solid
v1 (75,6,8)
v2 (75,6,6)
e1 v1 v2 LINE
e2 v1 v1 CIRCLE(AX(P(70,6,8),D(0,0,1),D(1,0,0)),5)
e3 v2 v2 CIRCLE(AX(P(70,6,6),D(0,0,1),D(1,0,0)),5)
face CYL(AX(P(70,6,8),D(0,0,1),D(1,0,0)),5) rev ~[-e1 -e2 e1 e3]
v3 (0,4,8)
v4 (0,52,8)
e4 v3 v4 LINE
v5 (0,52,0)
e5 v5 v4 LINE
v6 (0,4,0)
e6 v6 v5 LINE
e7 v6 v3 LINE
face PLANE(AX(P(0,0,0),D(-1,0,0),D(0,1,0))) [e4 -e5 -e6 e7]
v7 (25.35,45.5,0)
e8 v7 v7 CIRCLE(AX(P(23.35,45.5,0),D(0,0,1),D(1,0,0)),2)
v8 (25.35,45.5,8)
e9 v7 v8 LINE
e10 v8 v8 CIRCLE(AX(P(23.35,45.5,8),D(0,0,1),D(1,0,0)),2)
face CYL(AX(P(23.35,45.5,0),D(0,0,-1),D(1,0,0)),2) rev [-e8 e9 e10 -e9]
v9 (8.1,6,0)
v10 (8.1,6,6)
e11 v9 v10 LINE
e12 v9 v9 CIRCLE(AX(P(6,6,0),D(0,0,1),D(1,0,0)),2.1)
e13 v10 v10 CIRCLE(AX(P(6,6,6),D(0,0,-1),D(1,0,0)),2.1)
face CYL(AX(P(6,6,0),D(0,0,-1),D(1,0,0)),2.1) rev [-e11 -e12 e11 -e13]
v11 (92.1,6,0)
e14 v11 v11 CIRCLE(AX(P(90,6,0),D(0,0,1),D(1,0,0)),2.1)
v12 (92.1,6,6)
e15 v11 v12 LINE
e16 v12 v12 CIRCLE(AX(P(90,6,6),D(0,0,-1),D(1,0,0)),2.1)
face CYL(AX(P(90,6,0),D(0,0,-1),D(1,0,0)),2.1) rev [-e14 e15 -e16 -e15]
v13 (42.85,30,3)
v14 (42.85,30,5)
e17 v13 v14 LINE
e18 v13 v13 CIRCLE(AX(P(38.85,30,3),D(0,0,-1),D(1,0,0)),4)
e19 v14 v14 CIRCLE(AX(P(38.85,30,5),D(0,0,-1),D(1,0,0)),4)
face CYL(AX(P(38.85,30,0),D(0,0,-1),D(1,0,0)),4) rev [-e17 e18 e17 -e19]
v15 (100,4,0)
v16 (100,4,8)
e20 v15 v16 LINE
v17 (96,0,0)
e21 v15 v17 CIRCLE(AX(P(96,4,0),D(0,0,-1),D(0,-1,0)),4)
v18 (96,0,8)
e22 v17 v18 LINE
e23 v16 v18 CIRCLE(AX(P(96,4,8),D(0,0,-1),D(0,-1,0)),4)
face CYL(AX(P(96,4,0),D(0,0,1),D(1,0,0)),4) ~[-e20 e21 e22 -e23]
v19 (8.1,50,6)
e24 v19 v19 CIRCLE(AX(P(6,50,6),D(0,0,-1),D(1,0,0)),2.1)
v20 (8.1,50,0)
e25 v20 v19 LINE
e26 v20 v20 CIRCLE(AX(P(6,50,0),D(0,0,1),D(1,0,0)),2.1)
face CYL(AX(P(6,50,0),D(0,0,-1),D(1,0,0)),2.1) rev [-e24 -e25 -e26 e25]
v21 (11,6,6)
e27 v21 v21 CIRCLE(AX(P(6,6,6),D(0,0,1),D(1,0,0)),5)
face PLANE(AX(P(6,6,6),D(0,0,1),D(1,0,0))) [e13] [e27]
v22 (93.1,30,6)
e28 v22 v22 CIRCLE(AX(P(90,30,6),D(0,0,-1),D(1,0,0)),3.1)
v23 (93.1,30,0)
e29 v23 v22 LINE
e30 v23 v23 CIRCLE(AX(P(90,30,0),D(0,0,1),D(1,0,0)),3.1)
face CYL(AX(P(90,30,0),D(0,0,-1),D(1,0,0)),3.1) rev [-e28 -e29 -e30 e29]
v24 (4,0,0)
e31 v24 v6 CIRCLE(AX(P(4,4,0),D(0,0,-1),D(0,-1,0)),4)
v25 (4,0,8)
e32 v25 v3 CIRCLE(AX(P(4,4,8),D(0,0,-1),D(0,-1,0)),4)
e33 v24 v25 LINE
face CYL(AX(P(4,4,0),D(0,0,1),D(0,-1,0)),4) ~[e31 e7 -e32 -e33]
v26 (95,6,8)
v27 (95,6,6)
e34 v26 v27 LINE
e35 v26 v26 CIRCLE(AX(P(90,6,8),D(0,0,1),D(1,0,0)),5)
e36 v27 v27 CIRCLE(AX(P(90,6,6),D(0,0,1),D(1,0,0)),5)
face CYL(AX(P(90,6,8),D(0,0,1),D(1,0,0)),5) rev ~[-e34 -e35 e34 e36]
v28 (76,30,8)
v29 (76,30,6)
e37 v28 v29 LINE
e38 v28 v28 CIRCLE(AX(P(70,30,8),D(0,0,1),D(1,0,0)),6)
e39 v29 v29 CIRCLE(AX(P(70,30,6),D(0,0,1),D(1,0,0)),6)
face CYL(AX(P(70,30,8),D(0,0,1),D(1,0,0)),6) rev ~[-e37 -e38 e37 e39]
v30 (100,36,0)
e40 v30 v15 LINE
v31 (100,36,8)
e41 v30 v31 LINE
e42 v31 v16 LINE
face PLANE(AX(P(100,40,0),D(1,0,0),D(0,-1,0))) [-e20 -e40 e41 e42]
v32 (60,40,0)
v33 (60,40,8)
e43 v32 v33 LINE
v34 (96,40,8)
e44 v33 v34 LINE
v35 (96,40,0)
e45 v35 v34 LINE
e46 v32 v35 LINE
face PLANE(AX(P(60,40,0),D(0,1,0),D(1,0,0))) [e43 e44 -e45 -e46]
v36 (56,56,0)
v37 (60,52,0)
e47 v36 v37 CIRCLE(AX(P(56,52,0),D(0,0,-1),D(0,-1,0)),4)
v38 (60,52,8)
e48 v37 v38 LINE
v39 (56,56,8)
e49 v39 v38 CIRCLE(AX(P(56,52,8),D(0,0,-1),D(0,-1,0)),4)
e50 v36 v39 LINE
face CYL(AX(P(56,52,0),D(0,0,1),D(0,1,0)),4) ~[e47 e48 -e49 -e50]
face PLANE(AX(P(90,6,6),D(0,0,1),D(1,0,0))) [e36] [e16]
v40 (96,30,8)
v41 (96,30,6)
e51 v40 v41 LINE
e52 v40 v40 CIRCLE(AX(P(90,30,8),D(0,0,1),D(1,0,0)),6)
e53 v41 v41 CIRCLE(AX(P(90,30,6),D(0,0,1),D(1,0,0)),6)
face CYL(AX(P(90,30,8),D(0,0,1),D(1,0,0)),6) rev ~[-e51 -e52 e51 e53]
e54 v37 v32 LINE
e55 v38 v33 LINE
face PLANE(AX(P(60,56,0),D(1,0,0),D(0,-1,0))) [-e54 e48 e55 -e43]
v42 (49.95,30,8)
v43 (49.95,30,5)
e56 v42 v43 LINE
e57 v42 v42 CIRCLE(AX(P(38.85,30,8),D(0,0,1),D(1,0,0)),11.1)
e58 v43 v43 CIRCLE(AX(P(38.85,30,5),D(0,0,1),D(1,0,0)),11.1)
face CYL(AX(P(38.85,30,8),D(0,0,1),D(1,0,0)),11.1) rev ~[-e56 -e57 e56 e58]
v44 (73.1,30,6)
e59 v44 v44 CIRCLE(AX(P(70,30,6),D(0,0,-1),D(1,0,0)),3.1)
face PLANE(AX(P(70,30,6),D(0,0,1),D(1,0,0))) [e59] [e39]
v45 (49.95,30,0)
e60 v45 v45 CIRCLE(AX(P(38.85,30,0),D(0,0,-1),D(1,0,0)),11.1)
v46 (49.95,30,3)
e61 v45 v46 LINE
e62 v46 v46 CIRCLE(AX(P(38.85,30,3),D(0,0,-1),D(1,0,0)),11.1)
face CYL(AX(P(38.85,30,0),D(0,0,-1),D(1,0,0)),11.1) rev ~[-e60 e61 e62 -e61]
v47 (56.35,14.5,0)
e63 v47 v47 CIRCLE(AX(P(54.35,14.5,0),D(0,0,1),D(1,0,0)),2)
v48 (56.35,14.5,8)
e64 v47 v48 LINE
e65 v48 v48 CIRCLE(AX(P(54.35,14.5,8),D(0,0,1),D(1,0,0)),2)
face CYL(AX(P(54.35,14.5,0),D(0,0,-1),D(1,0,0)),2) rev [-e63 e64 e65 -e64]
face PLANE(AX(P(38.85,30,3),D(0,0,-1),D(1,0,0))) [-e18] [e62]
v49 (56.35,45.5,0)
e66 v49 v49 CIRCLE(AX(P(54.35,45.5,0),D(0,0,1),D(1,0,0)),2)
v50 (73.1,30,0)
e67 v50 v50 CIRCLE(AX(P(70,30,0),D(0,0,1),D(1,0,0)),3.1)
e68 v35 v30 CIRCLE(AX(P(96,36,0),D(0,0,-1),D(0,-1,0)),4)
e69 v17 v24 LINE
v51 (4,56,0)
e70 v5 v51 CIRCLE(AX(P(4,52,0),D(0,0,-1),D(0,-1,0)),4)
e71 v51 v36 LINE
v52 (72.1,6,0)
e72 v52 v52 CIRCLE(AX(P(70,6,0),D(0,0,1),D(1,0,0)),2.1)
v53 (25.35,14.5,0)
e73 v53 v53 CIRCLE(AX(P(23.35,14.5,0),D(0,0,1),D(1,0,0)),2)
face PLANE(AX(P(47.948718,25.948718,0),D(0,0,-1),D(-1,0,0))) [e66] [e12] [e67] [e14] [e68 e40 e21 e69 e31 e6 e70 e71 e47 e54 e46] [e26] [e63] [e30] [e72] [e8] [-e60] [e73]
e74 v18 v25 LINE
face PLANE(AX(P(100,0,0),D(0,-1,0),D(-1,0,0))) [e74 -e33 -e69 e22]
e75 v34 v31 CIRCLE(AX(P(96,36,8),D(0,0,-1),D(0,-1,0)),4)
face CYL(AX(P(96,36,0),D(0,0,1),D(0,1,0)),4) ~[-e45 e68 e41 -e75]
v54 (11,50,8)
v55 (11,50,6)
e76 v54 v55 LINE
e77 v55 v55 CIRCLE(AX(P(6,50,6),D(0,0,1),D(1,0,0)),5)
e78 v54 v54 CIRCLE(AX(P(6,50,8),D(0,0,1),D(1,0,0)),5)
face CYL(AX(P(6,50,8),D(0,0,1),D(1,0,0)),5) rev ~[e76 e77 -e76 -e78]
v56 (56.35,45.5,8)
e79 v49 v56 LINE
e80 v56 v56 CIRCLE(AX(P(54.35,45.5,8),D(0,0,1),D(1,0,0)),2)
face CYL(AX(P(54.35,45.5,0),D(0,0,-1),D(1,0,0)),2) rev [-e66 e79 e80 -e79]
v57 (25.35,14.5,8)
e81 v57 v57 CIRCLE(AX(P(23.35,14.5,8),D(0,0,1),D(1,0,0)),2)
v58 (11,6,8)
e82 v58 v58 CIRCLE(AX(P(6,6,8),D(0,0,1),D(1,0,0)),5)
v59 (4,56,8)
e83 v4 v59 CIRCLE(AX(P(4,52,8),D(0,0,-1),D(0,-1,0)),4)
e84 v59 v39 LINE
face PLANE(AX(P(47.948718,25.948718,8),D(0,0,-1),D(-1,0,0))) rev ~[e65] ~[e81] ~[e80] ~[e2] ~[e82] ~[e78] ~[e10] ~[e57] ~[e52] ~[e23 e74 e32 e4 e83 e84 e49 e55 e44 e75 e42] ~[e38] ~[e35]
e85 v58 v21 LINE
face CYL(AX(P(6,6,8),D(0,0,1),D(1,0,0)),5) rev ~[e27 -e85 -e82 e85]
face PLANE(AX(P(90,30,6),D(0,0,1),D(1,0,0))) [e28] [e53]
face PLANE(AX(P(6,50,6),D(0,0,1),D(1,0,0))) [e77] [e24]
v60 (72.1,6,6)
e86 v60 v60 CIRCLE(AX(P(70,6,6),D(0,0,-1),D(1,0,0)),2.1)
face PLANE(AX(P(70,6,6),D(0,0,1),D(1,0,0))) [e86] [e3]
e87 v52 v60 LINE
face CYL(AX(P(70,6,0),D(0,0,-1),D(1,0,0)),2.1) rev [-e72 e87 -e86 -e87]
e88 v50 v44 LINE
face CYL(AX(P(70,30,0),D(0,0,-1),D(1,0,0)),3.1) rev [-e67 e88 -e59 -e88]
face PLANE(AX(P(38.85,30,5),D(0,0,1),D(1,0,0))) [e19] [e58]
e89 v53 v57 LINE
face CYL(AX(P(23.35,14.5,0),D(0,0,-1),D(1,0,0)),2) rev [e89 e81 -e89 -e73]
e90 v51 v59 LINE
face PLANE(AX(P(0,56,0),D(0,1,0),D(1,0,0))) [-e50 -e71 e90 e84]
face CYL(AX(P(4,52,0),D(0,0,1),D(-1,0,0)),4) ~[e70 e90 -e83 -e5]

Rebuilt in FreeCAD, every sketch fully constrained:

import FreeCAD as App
import Part
import Sketcher


def edges_at(feature, points):
    """Names of the edges that pass closest to the given points."""
    edges = feature.Shape.Edges
    near = lambda p: min(range(len(edges)), key=lambda i: edges[i].distToShape(Part.Vertex(*p))[0])
    return sorted({f"Edge{near(p) + 1}" for p in points})


def add_polygon(sketch, points):
    """Adds a closed chain of lines whose ends are joined by coincident constraints."""
    first, n = sketch.GeometryCount, len(points)
    for a, b in zip(points, points[1:] + points[:1]):
        sketch.addGeometry(Part.LineSegment(App.Vector(*a, 0), App.Vector(*b, 0)), False)
    for i in range(n):
        sketch.addConstraint(Sketcher.Constraint("Coincident", first + i, 2, first + (i + 1) % n, 1))

doc = App.newDocument("Part")
body = doc.addObject("PartDesign::Body", "Body")

# Sketch on XY plane
sketch1 = body.newObject("Sketcher::SketchObject", "Sketch")
sketch1.AttachmentSupport = (doc.getObject("XY_Plane"), [""])
sketch1.MapMode = "FlatFace"
add_polygon(sketch1, [(0, 56), (0, 0), (100, 0), (100, 40), (60, 40), (60, 56)])  # lines 0-5
sketch1.addGeometry(Part.Circle(App.Vector(90, 6, 0), App.Vector(0, 0, 1), 2.1), False)  # 6
sketch1.addGeometry(Part.Circle(App.Vector(70, 6, 0), App.Vector(0, 0, 1), 2.1), False)  # 7
sketch1.addGeometry(Part.Circle(App.Vector(54.35, 14.5, 0), App.Vector(0, 0, 1), 2), False)  # 8
sketch1.addGeometry(Part.Circle(App.Vector(6, 6, 0), App.Vector(0, 0, 1), 2.1), False)  # 9
sketch1.addGeometry(Part.Circle(App.Vector(23.35, 14.5, 0), App.Vector(0, 0, 1), 2), False)  # 10
sketch1.addGeometry(Part.Circle(App.Vector(90, 30, 0), App.Vector(0, 0, 1), 3.1), False)  # 11
sketch1.addGeometry(Part.Circle(App.Vector(70, 30, 0), App.Vector(0, 0, 1), 3.1), False)  # 12
sketch1.addGeometry(Part.Circle(App.Vector(54.35, 45.5, 0), App.Vector(0, 0, 1), 2), False)  # 13
sketch1.addGeometry(Part.Circle(App.Vector(38.85, 30, 0), App.Vector(0, 0, 1), 4), False)  # 14
sketch1.addGeometry(Part.Circle(App.Vector(23.35, 45.5, 0), App.Vector(0, 0, 1), 2), False)  # 15
sketch1.addGeometry(Part.Circle(App.Vector(6, 50, 0), App.Vector(0, 0, 1), 2.1), False)  # 16
sketch1.addConstraint(Sketcher.Constraint("Vertical", 0))
sketch1.addConstraint(Sketcher.Constraint("Horizontal", 1))
sketch1.addConstraint(Sketcher.Constraint("Vertical", 2))
sketch1.addConstraint(Sketcher.Constraint("Horizontal", 3))
sketch1.addConstraint(Sketcher.Constraint("Vertical", 4))
sketch1.addConstraint(Sketcher.Constraint("Horizontal", 5))
sketch1.addConstraint(Sketcher.Constraint("Coincident", 0, 2, -1, 1))
sketch1.addConstraint(Sketcher.Constraint("Equal", 6, 7))
sketch1.addConstraint(Sketcher.Constraint("Equal", 7, 9))
sketch1.addConstraint(Sketcher.Constraint("Equal", 8, 10))
sketch1.addConstraint(Sketcher.Constraint("Equal", 11, 12))
sketch1.addConstraint(Sketcher.Constraint("Equal", 10, 13))
sketch1.addConstraint(Sketcher.Constraint("Equal", 13, 15))
sketch1.addConstraint(Sketcher.Constraint("Equal", 9, 16))
sketch1.addConstraint(Sketcher.Constraint("Horizontal", 6, 3, 7, 3))
sketch1.addConstraint(Sketcher.Constraint("Horizontal", 7, 3, 9, 3))
sketch1.addConstraint(Sketcher.Constraint("Horizontal", 8, 3, 10, 3))
sketch1.addConstraint(Sketcher.Constraint("Horizontal", 11, 3, 12, 3))
sketch1.addConstraint(Sketcher.Constraint("Horizontal", 12, 3, 14, 3))
sketch1.addConstraint(Sketcher.Constraint("Horizontal", 13, 3, 15, 3))
sketch1.addConstraint(Sketcher.Constraint("Vertical", 6, 3, 11, 3))
sketch1.addConstraint(Sketcher.Constraint("Vertical", 7, 3, 12, 3))
sketch1.addConstraint(Sketcher.Constraint("Vertical", 8, 3, 13, 3))
sketch1.addConstraint(Sketcher.Constraint("Vertical", 10, 3, 15, 3))
sketch1.addConstraint(Sketcher.Constraint("Vertical", 9, 3, 16, 3))
sketch1.addConstraint(Sketcher.Constraint("Equal", 3, 2))
sketch1.addConstraint(Sketcher.Constraint("Diameter", 8, 4.0))
sketch1.addConstraint(Sketcher.Constraint("Diameter", 14, 8.0))
sketch1.addConstraint(Sketcher.Constraint("Diameter", 6, 4.2))
sketch1.addConstraint(Sketcher.Constraint("Diameter", 11, 6.2))
sketch1.addConstraint(Sketcher.Constraint("DistanceX", 1, 1, 1, 2, 100.0))
sketch1.addConstraint(Sketcher.Constraint("DistanceX", 3, 2, 3, 1, 40.0))
sketch1.addConstraint(Sketcher.Constraint("DistanceY", 0, 2, 0, 1, 56.0))
sketch1.addConstraint(Sketcher.Constraint("DistanceX", -1, 1, 6, 3, 90.0))
sketch1.addConstraint(Sketcher.Constraint("DistanceY", -1, 1, 6, 3, 6.0))
sketch1.addConstraint(Sketcher.Constraint("DistanceX", -1, 1, 7, 3, 70.0))
sketch1.addConstraint(Sketcher.Constraint("DistanceX", -1, 1, 9, 3, 6.0))
sketch1.addConstraint(Sketcher.Constraint("DistanceY", -1, 1, 11, 3, 30.0))
sketch1.addConstraint(Sketcher.Constraint("DistanceY", -1, 1, 16, 3, 50.0))
sketch1.addConstraint(Sketcher.Constraint("DistanceX", 10, 3, 8, 3, 31.0))
sketch1.addConstraint(Sketcher.Constraint("DistanceY", 8, 3, 13, 3, 31.0))
sketch1.addConstraint(Sketcher.Constraint("DistanceY", -1, 1, 8, 3, 14.5))
sketch1.addConstraint(Sketcher.Constraint("DistanceX", 14, 3, 8, 3, 15.5))
sketch1.addConstraint(Sketcher.Constraint("DistanceX", -1, 1, 8, 3, 54.35))
pad1 = body.newObject("PartDesign::Pad", "Pad")
pad1.Profile = sketch1
pad1.Length = 8

# Sketch on XY plane
sketch2 = body.newObject("Sketcher::SketchObject", "Sketch001")
sketch2.AttachmentSupport = (doc.getObject("XY_Plane"), [""])
sketch2.MapMode = "FlatFace"
sketch2.AttachmentOffset = App.Placement(App.Vector(0, 0, 8), App.Rotation())
sketch2.addGeometry(Part.Circle(App.Vector(38.85, 30, 0), App.Vector(0, 0, 1), 11.1), False)
sketch2.addConstraint(Sketcher.Constraint("Diameter", 0, 22.2))
sketch2.addConstraint(Sketcher.Constraint("DistanceY", -1, 1, 0, 3, 30.0))
sketch2.addConstraint(Sketcher.Constraint("DistanceX", -1, 1, 0, 3, 38.85))
pocket1 = body.newObject("PartDesign::Pocket", "Pocket")
pocket1.Profile = sketch2
pocket1.Length = 3

# Sketch on XY plane
sketch3 = body.newObject("Sketcher::SketchObject", "Sketch002")
sketch3.AttachmentSupport = (doc.getObject("XY_Plane"), [""])
sketch3.MapMode = "FlatFace"
sketch3.AttachmentOffset = App.Placement(App.Vector(0, 0, 8), App.Rotation())
sketch3.addGeometry(Part.Circle(App.Vector(6, 50, 0), App.Vector(0, 0, 1), 5), False)
sketch3.addGeometry(Part.Circle(App.Vector(6, 6, 0), App.Vector(0, 0, 1), 5), False)
sketch3.addGeometry(Part.Circle(App.Vector(70, 6, 0), App.Vector(0, 0, 1), 5), False)
sketch3.addGeometry(Part.Circle(App.Vector(90, 6, 0), App.Vector(0, 0, 1), 5), False)
sketch3.addGeometry(Part.Circle(App.Vector(70, 30, 0), App.Vector(0, 0, 1), 6), False)
sketch3.addGeometry(Part.Circle(App.Vector(90, 30, 0), App.Vector(0, 0, 1), 6), False)
sketch3.addConstraint(Sketcher.Constraint("Equal", 0, 1))
sketch3.addConstraint(Sketcher.Constraint("Equal", 1, 2))
sketch3.addConstraint(Sketcher.Constraint("Equal", 2, 3))
sketch3.addConstraint(Sketcher.Constraint("Equal", 4, 5))
sketch3.addConstraint(Sketcher.Constraint("Horizontal", 1, 3, 2, 3))
sketch3.addConstraint(Sketcher.Constraint("Horizontal", 2, 3, 3, 3))
sketch3.addConstraint(Sketcher.Constraint("Horizontal", 4, 3, 5, 3))
sketch3.addConstraint(Sketcher.Constraint("Vertical", 0, 3, 1, 3))
sketch3.addConstraint(Sketcher.Constraint("Vertical", 2, 3, 4, 3))
sketch3.addConstraint(Sketcher.Constraint("Vertical", 3, 3, 5, 3))
sketch3.addConstraint(Sketcher.Constraint("Diameter", 0, 10.0))
sketch3.addConstraint(Sketcher.Constraint("Diameter", 4, 12.0))
sketch3.addConstraint(Sketcher.Constraint("DistanceX", -1, 1, 0, 3, 6.0))
sketch3.addConstraint(Sketcher.Constraint("DistanceY", -1, 1, 0, 3, 50.0))
sketch3.addConstraint(Sketcher.Constraint("DistanceY", -1, 1, 1, 3, 6.0))
sketch3.addConstraint(Sketcher.Constraint("DistanceX", -1, 1, 2, 3, 70.0))
sketch3.addConstraint(Sketcher.Constraint("DistanceX", -1, 1, 3, 3, 90.0))
sketch3.addConstraint(Sketcher.Constraint("DistanceY", -1, 1, 4, 3, 30.0))
pocket2 = body.newObject("PartDesign::Pocket", "Pocket001")
pocket2.Profile = sketch3
pocket2.Length = 2

# Sketch on XY plane
sketch4 = body.newObject("Sketcher::SketchObject", "Sketch003")
sketch4.AttachmentSupport = (doc.getObject("XY_Plane"), [""])
sketch4.MapMode = "FlatFace"
sketch4.addGeometry(Part.Circle(App.Vector(38.85, 30, 0), App.Vector(0, 0, 1), 11.1), False)
sketch4.addConstraint(Sketcher.Constraint("Diameter", 0, 22.2))
sketch4.addConstraint(Sketcher.Constraint("DistanceY", -1, 1, 0, 3, 30.0))
sketch4.addConstraint(Sketcher.Constraint("DistanceX", -1, 1, 0, 3, 38.85))
pocket3 = body.newObject("PartDesign::Pocket", "Pocket002")
pocket3.Profile = sketch4
pocket3.Length = 3
pocket3.Reversed = True
doc.recompute()

fillet = body.newObject("PartDesign::Fillet", "Fillet")
fillet.Base = (pocket3, edges_at(pocket3, [(0, 56, 4)]))
fillet.Radius = 4
doc.recompute()

fillet2 = body.newObject("PartDesign::Fillet", "Fillet001")
fillet2.Base = (fillet, edges_at(fillet, [(60, 56, 4)]))
fillet2.Radius = 4
doc.recompute()

fillet3 = body.newObject("PartDesign::Fillet", "Fillet002")
fillet3.Base = (fillet2, edges_at(fillet2, [(100, 40, 4)]))
fillet3.Radius = 4
doc.recompute()

fillet4 = body.newObject("PartDesign::Fillet", "Fillet003")
fillet4.Base = (fillet3, edges_at(fillet3, [(100, 0, 4)]))
fillet4.Radius = 4
doc.recompute()

fillet5 = body.newObject("PartDesign::Fillet", "Fillet004")
fillet5.Base = (fillet4, edges_at(fillet4, [(0, 0, 4)]))
fillet5.Radius = 4

doc.recompute()
